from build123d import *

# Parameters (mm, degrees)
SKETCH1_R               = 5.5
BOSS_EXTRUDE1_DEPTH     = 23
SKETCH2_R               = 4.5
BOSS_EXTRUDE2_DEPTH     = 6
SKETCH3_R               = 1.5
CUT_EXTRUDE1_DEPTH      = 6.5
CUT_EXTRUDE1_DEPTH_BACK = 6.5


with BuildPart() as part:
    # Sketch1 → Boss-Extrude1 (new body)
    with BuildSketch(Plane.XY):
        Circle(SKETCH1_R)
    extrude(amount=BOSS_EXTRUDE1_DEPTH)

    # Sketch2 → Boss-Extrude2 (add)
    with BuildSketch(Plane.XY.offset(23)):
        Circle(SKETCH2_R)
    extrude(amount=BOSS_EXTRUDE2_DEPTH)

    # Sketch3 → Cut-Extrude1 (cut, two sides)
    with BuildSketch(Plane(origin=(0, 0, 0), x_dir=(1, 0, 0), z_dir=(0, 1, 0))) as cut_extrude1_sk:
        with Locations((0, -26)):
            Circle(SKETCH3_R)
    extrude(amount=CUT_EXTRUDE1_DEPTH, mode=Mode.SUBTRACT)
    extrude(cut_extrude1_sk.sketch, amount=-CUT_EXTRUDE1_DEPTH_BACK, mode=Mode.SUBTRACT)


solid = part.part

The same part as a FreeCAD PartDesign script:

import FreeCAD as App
import Part
import Sketcher

doc = App.newDocument("Part")
body = doc.addObject("PartDesign::Body", "Body")

# Sketch on XY plane
sketch1 = body.newObject("Sketcher::SketchObject", "Sketch")
sketch1.AttachmentSupport = (doc.getObject("XY_Plane"), [""])
sketch1.MapMode = "FlatFace"
sketch1.addGeometry(Part.Circle(App.Vector(0, 0, 0), App.Vector(0, 0, 1), 5.5), False)
sketch1.addConstraint([
    Sketcher.Constraint("Coincident", 0, 3, -1, 1),
    Sketcher.Constraint("Diameter", 0, 11.0),
])
pad1 = body.newObject("PartDesign::Pad", "Pad")
pad1.Profile = sketch1
pad1.Length = 23

# Sketch on XY plane
sketch2 = body.newObject("Sketcher::SketchObject", "Sketch001")
sketch2.AttachmentSupport = (doc.getObject("XY_Plane"), [""])
sketch2.MapMode = "FlatFace"
sketch2.AttachmentOffset = App.Placement(App.Vector(0, 0, 23), App.Rotation())
sketch2.addGeometry(Part.Circle(App.Vector(0, 0, 0), App.Vector(0, 0, 1), 4.5), False)
sketch2.addConstraint([
    Sketcher.Constraint("Coincident", 0, 3, -1, 1),
    Sketcher.Constraint("Diameter", 0, 9.0),
])
pad2 = body.newObject("PartDesign::Pad", "Pad001")
pad2.Profile = sketch2
pad2.Length = 6

# Sketch on XZ plane
sketch3 = body.newObject("Sketcher::SketchObject", "Sketch002")
sketch3.AttachmentSupport = (doc.getObject("XZ_Plane"), [""])
sketch3.MapMode = "FlatFace"
sketch3.addGeometry(Part.Circle(App.Vector(0, 26, 0), App.Vector(0, 0, 1), 1.5), False)
sketch3.addConstraint([
    Sketcher.Constraint("PointOnObject", 0, 3, -2),
    Sketcher.Constraint("Diameter", 0, 3.0),
    Sketcher.Constraint("DistanceY", -1, 1, 0, 3, 26.0),
])
pocket1 = body.newObject("PartDesign::Pocket", "Pocket")
pocket1.Profile = sketch3
pocket1.Type = "ThroughAll"
pocket1.Midplane = True

doc.recompute()
